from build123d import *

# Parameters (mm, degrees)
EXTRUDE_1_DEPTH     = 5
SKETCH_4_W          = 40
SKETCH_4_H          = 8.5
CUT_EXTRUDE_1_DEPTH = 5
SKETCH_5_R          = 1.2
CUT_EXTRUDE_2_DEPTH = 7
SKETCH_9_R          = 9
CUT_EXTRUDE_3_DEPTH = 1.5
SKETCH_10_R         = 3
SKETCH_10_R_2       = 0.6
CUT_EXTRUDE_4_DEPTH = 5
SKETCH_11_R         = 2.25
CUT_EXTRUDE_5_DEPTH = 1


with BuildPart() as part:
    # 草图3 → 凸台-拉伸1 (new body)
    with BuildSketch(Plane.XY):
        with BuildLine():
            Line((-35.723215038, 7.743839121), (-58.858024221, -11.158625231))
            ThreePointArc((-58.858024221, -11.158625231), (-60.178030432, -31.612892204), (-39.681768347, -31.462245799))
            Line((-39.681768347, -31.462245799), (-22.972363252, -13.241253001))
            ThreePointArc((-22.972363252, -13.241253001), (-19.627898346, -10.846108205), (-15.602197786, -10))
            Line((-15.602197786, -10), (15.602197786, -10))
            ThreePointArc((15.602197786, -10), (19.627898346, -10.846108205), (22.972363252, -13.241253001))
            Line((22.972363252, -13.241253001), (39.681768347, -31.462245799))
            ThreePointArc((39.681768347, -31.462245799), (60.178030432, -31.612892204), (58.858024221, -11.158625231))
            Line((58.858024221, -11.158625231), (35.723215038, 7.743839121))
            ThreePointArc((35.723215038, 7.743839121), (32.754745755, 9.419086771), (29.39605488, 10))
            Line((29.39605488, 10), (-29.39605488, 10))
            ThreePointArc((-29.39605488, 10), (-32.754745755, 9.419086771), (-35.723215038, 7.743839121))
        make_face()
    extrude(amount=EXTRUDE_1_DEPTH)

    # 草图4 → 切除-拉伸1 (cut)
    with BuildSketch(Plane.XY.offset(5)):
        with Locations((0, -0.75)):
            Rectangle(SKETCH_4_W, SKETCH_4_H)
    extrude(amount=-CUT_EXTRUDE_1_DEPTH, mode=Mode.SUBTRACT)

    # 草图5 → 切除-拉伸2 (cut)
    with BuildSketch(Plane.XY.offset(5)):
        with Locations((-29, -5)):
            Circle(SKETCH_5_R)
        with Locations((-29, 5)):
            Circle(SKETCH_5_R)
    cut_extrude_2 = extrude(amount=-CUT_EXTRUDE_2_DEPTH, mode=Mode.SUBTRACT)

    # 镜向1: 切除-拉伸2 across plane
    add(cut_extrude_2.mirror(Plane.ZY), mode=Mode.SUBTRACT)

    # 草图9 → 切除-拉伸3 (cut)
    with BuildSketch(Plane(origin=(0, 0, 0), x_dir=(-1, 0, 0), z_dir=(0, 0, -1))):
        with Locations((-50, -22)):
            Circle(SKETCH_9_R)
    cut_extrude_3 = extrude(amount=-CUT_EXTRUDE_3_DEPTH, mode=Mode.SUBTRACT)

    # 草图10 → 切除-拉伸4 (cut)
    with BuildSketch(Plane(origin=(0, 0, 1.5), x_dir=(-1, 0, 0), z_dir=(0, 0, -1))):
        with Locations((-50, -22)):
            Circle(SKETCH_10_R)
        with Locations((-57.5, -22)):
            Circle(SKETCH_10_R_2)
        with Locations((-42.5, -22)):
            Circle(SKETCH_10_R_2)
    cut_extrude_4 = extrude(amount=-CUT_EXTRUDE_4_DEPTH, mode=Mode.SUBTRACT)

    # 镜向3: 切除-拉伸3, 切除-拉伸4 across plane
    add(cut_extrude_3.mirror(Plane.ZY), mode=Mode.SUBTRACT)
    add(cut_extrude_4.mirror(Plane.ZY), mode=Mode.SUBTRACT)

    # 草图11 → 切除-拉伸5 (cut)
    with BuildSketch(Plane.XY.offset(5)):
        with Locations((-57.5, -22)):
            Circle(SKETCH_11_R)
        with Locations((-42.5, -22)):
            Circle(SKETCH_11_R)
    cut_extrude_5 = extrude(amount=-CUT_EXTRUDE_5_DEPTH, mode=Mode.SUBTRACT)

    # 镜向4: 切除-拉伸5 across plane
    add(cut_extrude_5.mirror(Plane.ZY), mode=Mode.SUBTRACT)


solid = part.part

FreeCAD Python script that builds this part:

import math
import FreeCAD as App
import Part
import Sketcher

V = App.Vector

doc = App.newDocument("Part")
body = doc.addObject("PartDesign::Body", "Body")

# Sketch on XY plane
sketch1 = body.newObject("Sketcher::SketchObject", "Sketch")
sketch1.AttachmentSupport = (doc.getObject("XY_Plane"), [""])
sketch1.MapMode = "FlatFace"
sketch1.addGeometry(Part.LineSegment(V(-36, 8, 0), V(-59, -11, 0)), False)
sketch1.addGeometry(Part.ArcOfCircle(Part.Circle(V(-50, -22, 0), V(0, 0, 1), 14), math.radians(129), math.radians(317)), False)
sketch1.addGeometry(Part.LineSegment(V(-40, -31, 0), V(-23, -13, 0)), False)
sketch1.addGeometry(Part.ArcOfCircle(Part.Circle(V(-16, -20, 0), V(0, 0, 1), 10), math.radians(90), math.radians(137)), False)
sketch1.addGeometry(Part.LineSegment(V(-16, -10, 0), V(16, -10, 0)), False)
sketch1.addGeometry(Part.ArcOfCircle(Part.Circle(V(16, -20, 0), V(0, 0, 1), 10), math.radians(43), math.radians(90)), False)
sketch1.addGeometry(Part.LineSegment(V(23, -13, 0), V(40, -31, 0)), False)
sketch1.addGeometry(Part.ArcOfCircle(Part.Circle(V(50, -22, 0), V(0, 0, 1), 14), math.radians(-137), math.radians(51)), False)
sketch1.addGeometry(Part.LineSegment(V(59, -11, 0), V(36, 8, 0)), False)
sketch1.addGeometry(Part.ArcOfCircle(Part.Circle(V(29, 0, 0), V(0, 0, 1), 10), math.radians(51), math.radians(90)), False)
sketch1.addGeometry(Part.LineSegment(V(29, 10, 0), V(-29, 10, 0)), False)
sketch1.addGeometry(Part.ArcOfCircle(Part.Circle(V(-29, 0, 0), V(0, 0, 1), 10), math.radians(90), math.radians(129)), False)
sketch1.addConstraint(Sketcher.Constraint("Tangent", 0, 2, 1, 1))
sketch1.addConstraint(Sketcher.Constraint("Tangent", 1, 2, 2, 1))
sketch1.addConstraint(Sketcher.Constraint("Tangent", 2, 2, 3, 2))
sketch1.addConstraint(Sketcher.Constraint("Tangent", 3, 1, 4, 1))
sketch1.addConstraint(Sketcher.Constraint("Tangent", 4, 2, 5, 2))
sketch1.addConstraint(Sketcher.Constraint("Tangent", 5, 1, 6, 1))
sketch1.addConstraint(Sketcher.Constraint("Tangent", 6, 2, 7, 1))
sketch1.addConstraint(Sketcher.Constraint("Tangent", 7, 2, 8, 1))
sketch1.addConstraint(Sketcher.Constraint("Tangent", 8, 2, 9, 1))
sketch1.addConstraint(Sketcher.Constraint("Tangent", 9, 2, 10, 1))
sketch1.addConstraint(Sketcher.Constraint("Tangent", 10, 2, 11, 1))
sketch1.addConstraint(Sketcher.Constraint("Tangent", 11, 2, 0, 1))
sketch1.addConstraint(Sketcher.Constraint("Horizontal", 4))
sketch1.addConstraint(Sketcher.Constraint("Horizontal", 10))
sketch1.addConstraint(Sketcher.Constraint("Equal", 3, 5))
sketch1.addConstraint(Sketcher.Constraint("Equal", 1, 7))
sketch1.addConstraint(Sketcher.Constraint("Equal", 5, 9))
sketch1.addConstraint(Sketcher.Constraint("Equal", 9, 11))
sketch1.addConstraint(Sketcher.Constraint("Symmetric", 9, 3, 11, 3, -1, 1))
sketch1.addConstraint(Sketcher.Constraint("Symmetric", 1, 3, 7, 3, -2))
sketch1.addConstraint(Sketcher.Constraint("Horizontal", 2, 2, 5, 1))
sketch1.addConstraint(Sketcher.Constraint("Radius", 1, 14.0))
sketch1.addConstraint(Sketcher.Constraint("Radius", 3, 10.0))
sketch1.addConstraint(Sketcher.Constraint("DistanceX", 1, 3, -1, 1, 50.0))
sketch1.addConstraint(Sketcher.Constraint("DistanceY", 1, 3, -1, 1, 22.0))
sketch1.addConstraint(Sketcher.Constraint("DistanceY", 3, 3, -1, 1, 20.0))
sketch1.addConstraint(Sketcher.Constraint("DistanceX", 10, 2, 10, 1, 58.79211))
sketch1.addConstraint(Sketcher.Constraint("DistanceX", 4, 1, 4, 2, 31.204396))
pad1 = body.newObject("PartDesign::Pad", "Pad")
pad1.Profile = sketch1
pad1.Length = 5

# Sketch on XY plane
sketch2 = body.newObject("Sketcher::SketchObject", "Sketch001")
sketch2.AttachmentSupport = (doc.getObject("XY_Plane"), [""])
sketch2.MapMode = "FlatFace"
sketch2.AttachmentOffset = App.Placement(V(0, 0, 5), App.Rotation())
sketch2.addGeometry(Part.LineSegment(V(-20, 4, 0), V(-20, -5, 0)), False)
sketch2.addGeometry(Part.LineSegment(V(-20, -5, 0), V(20, -5, 0)), False)
sketch2.addGeometry(Part.LineSegment(V(20, -5, 0), V(20, 4, 0)), False)
sketch2.addGeometry(Part.LineSegment(V(20, 4, 0), V(-20, 4, 0)), False)
sketch2.addConstraint(Sketcher.Constraint("Coincident", 0, 2, 1, 1))
sketch2.addConstraint(Sketcher.Constraint("Coincident", 1, 2, 2, 1))
sketch2.addConstraint(Sketcher.Constraint("Coincident", 2, 2, 3, 1))
sketch2.addConstraint(Sketcher.Constraint("Coincident", 3, 2, 0, 1))
sketch2.addConstraint(Sketcher.Constraint("Vertical", 0))
sketch2.addConstraint(Sketcher.Constraint("Horizontal", 1))
sketch2.addConstraint(Sketcher.Constraint("Vertical", 2))
sketch2.addConstraint(Sketcher.Constraint("Horizontal", 3))
sketch2.addConstraint(Sketcher.Constraint("DistanceX", 1, 1, 1, 2, 40.0))
sketch2.addConstraint(Sketcher.Constraint("DistanceY", 0, 2, 0, 1, 8.5))
sketch2.addConstraint(Sketcher.Constraint("DistanceX", 0, 2, -1, 1, 20.0))
sketch2.addConstraint(Sketcher.Constraint("DistanceY", 0, 2, -1, 1, 5.0))
pocket1 = body.newObject("PartDesign::Pocket", "Pocket")
pocket1.Profile = sketch2
pocket1.Length = 5

# Sketch on XY plane
sketch3 = body.newObject("Sketcher::SketchObject", "Sketch002")
sketch3.AttachmentSupport = (doc.getObject("XY_Plane"), [""])
sketch3.MapMode = "FlatFace"
sketch3.AttachmentOffset = App.Placement(V(0, 0, 5), App.Rotation())
sketch3.addGeometry(Part.Circle(V(-29, -5, 0), V(0, 0, 1), 1.2), False)
sketch3.addGeometry(Part.Circle(V(-29, 5, 0), V(0, 0, 1), 1.2), False)
sketch3.addConstraint(Sketcher.Constraint("Equal", 0, 1))
sketch3.addConstraint(Sketcher.Constraint("Symmetric", 0, 3, 1, 3, -1))
sketch3.addConstraint(Sketcher.Constraint("Diameter", 0, 2.4))
sketch3.addConstraint(Sketcher.Constraint("DistanceX", 0, 3, -1, 1, 29.0))
sketch3.addConstraint(Sketcher.Constraint("DistanceY", 0, 3, -1, 1, 5.0))
pocket2 = body.newObject("PartDesign::Pocket", "Pocket001")
pocket2.Profile = sketch3
pocket2.Length = 7
doc.recompute()

mirrored = body.newObject("PartDesign::Mirrored", "Mirrored")
mirrored.Originals = [pocket2]
mirrored.MirrorPlane = (doc.getObject("YZ_Plane"), [""])
body.Tip = mirrored

# Sketch on XY plane
sketch4 = body.newObject("Sketcher::SketchObject", "Sketch003")
sketch4.AttachmentSupport = (doc.getObject("XY_Plane"), [""])
sketch4.MapMode = "FlatFace"
sketch4.addGeometry(Part.Circle(V(50, -22, 0), V(0, 0, 1), 9), False)
sketch4.addConstraint(Sketcher.Constraint("Diameter", 0, 18.0))
sketch4.addConstraint(Sketcher.Constraint("DistanceX", -1, 1, 0, 3, 50.0))
sketch4.addConstraint(Sketcher.Constraint("DistanceY", 0, 3, -1, 1, 22.0))
pocket3 = body.newObject("PartDesign::Pocket", "Pocket002")
pocket3.Profile = sketch4
pocket3.Length = 1.5
pocket3.Reversed = True

# Sketch on XY plane
sketch5 = body.newObject("Sketcher::SketchObject", "Sketch004")
sketch5.AttachmentSupport = (doc.getObject("XY_Plane"), [""])
sketch5.MapMode = "FlatFace"
sketch5.AttachmentOffset = App.Placement(V(0, 0, 1.5), App.Rotation())
sketch5.addGeometry(Part.Circle(V(50, -22, 0), V(0, 0, 1), 3), False)
sketch5.addGeometry(Part.Circle(V(57.5, -22, 0), V(0, 0, 1), 0.6), False)
sketch5.addGeometry(Part.Circle(V(42.5, -22, 0), V(0, 0, 1), 0.6), False)
sketch5.addConstraint(Sketcher.Constraint("Equal", 1, 2))
sketch5.addConstraint(Sketcher.Constraint("Horizontal", 0, 3, 1, 3))
sketch5.addConstraint(Sketcher.Constraint("Horizontal", 1, 3, 2, 3))
sketch5.addConstraint(Sketcher.Constraint("Diameter", 0, 6.0))
sketch5.addConstraint(Sketcher.Constraint("Diameter", 1, 1.2))
sketch5.addConstraint(Sketcher.Constraint("DistanceX", -1, 1, 0, 3, 50.0))
sketch5.addConstraint(Sketcher.Constraint("DistanceY", 0, 3, -1, 1, 22.0))
sketch5.addConstraint(Sketcher.Constraint("DistanceX", 2, 3, 1, 3, 15.0))
sketch5.addConstraint(Sketcher.Constraint("DistanceX", -1, 1, 1, 3, 57.5))
pocket4 = body.newObject("PartDesign::Pocket", "Pocket003")
pocket4.Profile = sketch5
pocket4.Length = 5
pocket4.Reversed = True
doc.recompute()

mirrored2 = body.newObject("PartDesign::Mirrored", "Mirrored001")
mirrored2.Originals = [pocket3, pocket4]
mirrored2.MirrorPlane = (doc.getObject("YZ_Plane"), [""])
body.Tip = mirrored2

# Sketch on XY plane
sketch6 = body.newObject("Sketcher::SketchObject", "Sketch005")
sketch6.AttachmentSupport = (doc.getObject("XY_Plane"), [""])
sketch6.MapMode = "FlatFace"
sketch6.AttachmentOffset = App.Placement(V(0, 0, 5), App.Rotation())
sketch6.addGeometry(Part.Circle(V(-57.5, -22, 0), V(0, 0, 1), 2.2), False)
sketch6.addGeometry(Part.Circle(V(-42.5, -22, 0), V(0, 0, 1), 2.2), False)
sketch6.addConstraint(Sketcher.Constraint("Equal", 0, 1))
sketch6.addConstraint(Sketcher.Constraint("Horizontal", 0, 3, 1, 3))
sketch6.addConstraint(Sketcher.Constraint("Diameter", 0, 4.5))
sketch6.addConstraint(Sketcher.Constraint("DistanceY", 0, 3, -1, 1, 22.0))
sketch6.addConstraint(Sketcher.Constraint("DistanceX", 0, 3, 1, 3, 15.0))
sketch6.addConstraint(Sketcher.Constraint("DistanceX", 0, 3, -1, 1, 57.5))
pocket5 = body.newObject("PartDesign::Pocket", "Pocket004")
pocket5.Profile = sketch6
pocket5.Length = 1
doc.recompute()

mirrored3 = body.newObject("PartDesign::Mirrored", "Mirrored002")
mirrored3.Originals = [pocket5]
mirrored3.MirrorPlane = (doc.getObject("YZ_Plane"), [""])
body.Tip = mirrored3

doc.recompute()
